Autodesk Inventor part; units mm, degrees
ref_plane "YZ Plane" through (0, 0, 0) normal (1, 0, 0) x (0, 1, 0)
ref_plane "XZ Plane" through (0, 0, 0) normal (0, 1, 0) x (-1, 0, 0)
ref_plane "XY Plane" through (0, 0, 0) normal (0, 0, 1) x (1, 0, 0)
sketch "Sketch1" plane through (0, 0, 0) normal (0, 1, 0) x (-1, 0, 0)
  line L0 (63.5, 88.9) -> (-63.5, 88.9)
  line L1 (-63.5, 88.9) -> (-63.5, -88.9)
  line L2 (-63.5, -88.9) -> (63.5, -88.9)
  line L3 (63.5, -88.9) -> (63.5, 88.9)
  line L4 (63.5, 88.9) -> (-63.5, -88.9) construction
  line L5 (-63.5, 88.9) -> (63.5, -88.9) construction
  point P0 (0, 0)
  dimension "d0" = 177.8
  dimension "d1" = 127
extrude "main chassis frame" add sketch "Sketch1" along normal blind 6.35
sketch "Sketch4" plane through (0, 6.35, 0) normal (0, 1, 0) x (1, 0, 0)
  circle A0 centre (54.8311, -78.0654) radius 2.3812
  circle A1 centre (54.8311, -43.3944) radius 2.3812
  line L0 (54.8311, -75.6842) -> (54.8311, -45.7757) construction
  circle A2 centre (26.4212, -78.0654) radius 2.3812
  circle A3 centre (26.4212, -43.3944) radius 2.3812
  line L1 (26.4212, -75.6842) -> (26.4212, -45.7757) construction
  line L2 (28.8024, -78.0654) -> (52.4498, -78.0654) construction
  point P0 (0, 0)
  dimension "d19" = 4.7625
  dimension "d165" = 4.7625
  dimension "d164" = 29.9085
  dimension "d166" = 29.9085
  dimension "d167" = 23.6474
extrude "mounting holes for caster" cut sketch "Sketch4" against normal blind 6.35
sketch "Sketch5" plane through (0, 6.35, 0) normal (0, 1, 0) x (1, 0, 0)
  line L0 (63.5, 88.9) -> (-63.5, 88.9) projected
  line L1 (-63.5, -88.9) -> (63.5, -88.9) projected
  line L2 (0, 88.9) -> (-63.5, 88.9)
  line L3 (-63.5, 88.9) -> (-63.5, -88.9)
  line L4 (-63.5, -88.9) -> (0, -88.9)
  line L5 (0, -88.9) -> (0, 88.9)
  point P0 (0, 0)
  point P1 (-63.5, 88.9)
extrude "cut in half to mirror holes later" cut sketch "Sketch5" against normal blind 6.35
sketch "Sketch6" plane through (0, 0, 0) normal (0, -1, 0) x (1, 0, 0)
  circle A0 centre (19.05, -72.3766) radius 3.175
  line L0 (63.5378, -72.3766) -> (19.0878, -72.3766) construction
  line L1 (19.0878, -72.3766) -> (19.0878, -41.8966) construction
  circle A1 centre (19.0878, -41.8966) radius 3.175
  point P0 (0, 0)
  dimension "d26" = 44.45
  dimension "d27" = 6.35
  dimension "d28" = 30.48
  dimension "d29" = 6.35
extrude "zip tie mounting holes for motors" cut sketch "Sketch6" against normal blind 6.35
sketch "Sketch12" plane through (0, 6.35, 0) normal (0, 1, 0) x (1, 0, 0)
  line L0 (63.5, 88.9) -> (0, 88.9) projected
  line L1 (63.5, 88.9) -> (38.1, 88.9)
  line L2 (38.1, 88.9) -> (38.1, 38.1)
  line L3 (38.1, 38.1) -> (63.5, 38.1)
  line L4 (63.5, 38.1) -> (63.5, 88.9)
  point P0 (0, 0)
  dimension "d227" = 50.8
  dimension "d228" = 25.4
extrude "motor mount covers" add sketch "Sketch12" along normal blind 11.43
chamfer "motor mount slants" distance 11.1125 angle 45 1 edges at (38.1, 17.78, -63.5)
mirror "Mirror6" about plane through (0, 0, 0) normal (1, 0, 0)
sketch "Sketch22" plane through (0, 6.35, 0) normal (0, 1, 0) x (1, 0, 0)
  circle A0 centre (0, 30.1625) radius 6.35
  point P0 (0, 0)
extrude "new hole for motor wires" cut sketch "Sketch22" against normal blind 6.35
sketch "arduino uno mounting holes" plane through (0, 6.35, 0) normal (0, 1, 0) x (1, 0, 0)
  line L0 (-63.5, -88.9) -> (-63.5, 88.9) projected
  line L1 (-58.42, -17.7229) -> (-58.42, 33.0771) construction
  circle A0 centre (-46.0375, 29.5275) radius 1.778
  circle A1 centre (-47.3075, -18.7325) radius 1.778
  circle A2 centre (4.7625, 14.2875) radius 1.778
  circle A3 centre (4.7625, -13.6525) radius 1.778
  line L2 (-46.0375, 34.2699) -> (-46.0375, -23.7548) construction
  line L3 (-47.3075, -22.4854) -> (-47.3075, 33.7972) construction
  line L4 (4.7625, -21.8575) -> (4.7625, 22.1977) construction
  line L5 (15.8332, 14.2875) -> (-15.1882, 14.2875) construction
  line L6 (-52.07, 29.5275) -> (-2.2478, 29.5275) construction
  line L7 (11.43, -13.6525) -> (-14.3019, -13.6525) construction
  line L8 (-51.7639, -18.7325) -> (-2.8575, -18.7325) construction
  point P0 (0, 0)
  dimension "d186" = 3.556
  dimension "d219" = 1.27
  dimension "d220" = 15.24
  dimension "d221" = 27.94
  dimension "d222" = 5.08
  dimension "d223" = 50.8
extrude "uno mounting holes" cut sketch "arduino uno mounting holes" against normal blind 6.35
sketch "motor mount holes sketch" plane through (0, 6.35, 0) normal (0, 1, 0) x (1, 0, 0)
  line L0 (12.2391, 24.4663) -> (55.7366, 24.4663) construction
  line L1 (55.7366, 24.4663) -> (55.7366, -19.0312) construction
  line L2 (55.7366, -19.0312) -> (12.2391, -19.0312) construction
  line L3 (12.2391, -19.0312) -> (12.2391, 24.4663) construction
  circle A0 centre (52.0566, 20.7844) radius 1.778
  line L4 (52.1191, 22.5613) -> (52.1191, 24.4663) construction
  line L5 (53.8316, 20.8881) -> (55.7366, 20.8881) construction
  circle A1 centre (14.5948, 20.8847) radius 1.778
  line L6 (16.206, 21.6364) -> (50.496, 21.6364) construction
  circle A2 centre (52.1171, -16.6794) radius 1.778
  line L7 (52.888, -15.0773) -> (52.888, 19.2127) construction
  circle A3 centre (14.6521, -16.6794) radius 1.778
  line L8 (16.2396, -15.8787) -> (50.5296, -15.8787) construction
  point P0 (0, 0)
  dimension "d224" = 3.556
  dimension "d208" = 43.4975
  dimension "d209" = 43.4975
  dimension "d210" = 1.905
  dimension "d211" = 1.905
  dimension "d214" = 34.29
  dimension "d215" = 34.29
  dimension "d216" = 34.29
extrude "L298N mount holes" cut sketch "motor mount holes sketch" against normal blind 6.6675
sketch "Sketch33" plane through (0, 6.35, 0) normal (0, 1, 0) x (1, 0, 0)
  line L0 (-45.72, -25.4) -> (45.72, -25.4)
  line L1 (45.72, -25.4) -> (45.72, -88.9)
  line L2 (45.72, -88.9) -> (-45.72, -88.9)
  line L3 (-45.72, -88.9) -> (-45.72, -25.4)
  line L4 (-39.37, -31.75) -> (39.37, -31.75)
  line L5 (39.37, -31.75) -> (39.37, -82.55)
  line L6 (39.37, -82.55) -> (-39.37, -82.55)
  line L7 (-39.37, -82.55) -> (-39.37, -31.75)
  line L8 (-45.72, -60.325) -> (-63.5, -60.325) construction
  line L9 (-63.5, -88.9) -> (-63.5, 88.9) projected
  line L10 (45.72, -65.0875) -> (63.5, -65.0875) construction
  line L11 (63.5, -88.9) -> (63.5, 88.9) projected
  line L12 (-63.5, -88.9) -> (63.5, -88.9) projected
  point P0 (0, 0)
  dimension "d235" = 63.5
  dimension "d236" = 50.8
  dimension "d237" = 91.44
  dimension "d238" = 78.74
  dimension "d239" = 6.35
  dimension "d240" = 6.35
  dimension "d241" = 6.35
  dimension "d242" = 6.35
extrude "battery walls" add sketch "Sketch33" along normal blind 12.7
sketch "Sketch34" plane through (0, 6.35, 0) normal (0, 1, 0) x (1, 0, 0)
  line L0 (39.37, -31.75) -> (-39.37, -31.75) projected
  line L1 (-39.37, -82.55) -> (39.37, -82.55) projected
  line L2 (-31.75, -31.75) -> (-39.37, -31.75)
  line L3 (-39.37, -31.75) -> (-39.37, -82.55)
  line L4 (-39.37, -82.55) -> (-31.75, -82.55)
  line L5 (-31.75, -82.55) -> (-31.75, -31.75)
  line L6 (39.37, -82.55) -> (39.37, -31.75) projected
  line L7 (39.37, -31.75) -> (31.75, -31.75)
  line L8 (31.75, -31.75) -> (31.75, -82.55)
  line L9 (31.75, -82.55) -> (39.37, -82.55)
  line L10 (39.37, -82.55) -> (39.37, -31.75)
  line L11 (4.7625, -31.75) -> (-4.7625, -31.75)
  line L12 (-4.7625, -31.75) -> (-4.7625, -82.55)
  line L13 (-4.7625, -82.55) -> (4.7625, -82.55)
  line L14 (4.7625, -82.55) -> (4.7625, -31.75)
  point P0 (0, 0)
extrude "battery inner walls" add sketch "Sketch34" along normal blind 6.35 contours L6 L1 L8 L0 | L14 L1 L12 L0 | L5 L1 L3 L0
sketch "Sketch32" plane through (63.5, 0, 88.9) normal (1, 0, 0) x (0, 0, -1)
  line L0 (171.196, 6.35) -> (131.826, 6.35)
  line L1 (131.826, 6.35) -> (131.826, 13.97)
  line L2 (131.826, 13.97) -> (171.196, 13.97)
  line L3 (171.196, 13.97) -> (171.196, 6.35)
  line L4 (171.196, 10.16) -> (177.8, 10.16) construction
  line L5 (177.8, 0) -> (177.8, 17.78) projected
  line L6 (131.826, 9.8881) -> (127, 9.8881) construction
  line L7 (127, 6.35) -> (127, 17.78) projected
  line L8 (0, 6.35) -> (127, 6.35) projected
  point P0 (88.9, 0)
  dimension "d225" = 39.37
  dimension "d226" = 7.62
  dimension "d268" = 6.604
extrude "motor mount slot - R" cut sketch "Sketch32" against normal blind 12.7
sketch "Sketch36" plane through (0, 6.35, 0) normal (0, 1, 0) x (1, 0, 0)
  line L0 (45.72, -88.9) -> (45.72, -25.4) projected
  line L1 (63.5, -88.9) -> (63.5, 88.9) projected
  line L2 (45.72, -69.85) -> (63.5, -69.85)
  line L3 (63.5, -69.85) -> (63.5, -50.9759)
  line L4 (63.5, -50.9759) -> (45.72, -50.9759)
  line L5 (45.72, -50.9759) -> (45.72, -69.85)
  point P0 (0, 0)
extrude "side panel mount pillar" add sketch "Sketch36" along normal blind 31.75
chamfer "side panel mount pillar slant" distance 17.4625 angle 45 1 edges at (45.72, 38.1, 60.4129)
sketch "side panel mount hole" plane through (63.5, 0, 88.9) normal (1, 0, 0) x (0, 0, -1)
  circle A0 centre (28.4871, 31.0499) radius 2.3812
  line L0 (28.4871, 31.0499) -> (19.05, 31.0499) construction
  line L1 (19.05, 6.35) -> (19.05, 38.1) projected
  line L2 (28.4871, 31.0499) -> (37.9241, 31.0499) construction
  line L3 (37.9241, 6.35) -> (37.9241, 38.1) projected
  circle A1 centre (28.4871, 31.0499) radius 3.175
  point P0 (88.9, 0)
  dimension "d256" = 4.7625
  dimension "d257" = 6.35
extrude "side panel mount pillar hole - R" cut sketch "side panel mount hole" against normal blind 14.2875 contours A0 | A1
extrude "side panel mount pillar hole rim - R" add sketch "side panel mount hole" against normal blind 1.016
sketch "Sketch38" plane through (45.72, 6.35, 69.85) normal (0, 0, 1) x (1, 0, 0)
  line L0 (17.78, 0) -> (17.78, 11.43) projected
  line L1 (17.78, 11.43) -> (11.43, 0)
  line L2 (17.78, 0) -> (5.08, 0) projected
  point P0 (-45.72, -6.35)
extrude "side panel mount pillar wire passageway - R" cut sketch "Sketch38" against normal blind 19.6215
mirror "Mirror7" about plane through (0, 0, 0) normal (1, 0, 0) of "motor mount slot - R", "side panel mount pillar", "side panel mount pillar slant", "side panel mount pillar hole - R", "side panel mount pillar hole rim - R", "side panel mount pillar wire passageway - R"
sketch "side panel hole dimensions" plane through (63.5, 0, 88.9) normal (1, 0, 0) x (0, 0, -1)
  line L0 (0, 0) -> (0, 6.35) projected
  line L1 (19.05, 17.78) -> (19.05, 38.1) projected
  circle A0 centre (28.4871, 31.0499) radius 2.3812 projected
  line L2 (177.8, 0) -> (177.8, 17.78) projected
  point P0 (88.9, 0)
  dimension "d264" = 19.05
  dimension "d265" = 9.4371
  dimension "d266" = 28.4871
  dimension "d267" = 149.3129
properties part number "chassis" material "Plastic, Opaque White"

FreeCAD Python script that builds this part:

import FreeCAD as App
import Part
import Sketcher
from FreeCAD import Vector
Q = App.Units.Quantity


def edges_at(feature, points):
    """Names of the edges that pass closest to the given points."""
    edges = feature.Shape.Edges
    near = lambda p: min(range(len(edges)), key=lambda i: edges[i].distToShape(Part.Vertex(*p))[0])
    return sorted({f"Edge{near(p) + 1}" for p in points})


def add_polygon(sketch, points):
    """Adds a closed chain of lines whose ends are joined by coincident constraints."""
    first, n = sketch.GeometryCount, len(points)
    for a, b in zip(points, points[1:] + points[:1]):
        sketch.addGeometry(Part.LineSegment(App.Vector(*a, 0), App.Vector(*b, 0)), False)
    for i in range(n):
        sketch.addConstraint(Sketcher.Constraint("Coincident", first + i, 2, first + (i + 1) % n, 1))

doc = App.newDocument("Part")
params = doc.addObject("Spreadsheet::Sheet", "Params")
for row, (alias, value) in enumerate([
    ("sketch1_width", "5 in"),
    ("sketch1_height", "7 in"),
    ("pad1_length", "0.25 in"),
    ("sketch2_diameter", "0.1875 in"),
    ("pocket1_length", "0.25 in"),
    ("sketch3_height", "7 in"),
    ("sketch3_width", "2.5 in"),
    ("pocket2_length", "0.25 in"),
    ("sketch4_diameter", "0.25 in"),
    ("pocket3_length", "0.25 in"),
    ("sketch5_width", "1 in"),
    ("sketch5_height", "2 in"),
    ("pad2_length", "0.45 in"),
    ("chamfer_size", "0.4375 in"),
    ("sketch6_diameter", "0.5 in"),
    ("pocket4_length", "0.25 in"),
    ("sketch7_diameter", "0.14 in"),
    ("pocket5_length", "0.25 in"),
    ("sketch8_diameter", "0.14 in"),
    ("pocket6_length", "0.2625 in"),
    ("sketch9_height", "2 in"),
    ("sketch9_width", "3.6 in"),
    ("sketch9_width2", "3.1 in"),
    ("sketch9_height2", "2.5 in"),
    ("pad3_length", "0.5 in"),
    ("sketch10_height", "2 in"),
    ("sketch10_width", "0.3 in"),
    ("sketch10_width2", "0.375 in"),
    ("pad4_length", "0.25 in"),
    ("sketch11_width", "0.3 in"),
    ("sketch11_height", "1.55 in"),
    ("pocket7_length", "0.5 in"),
    ("sketch12_width", "0.7 in"),
    ("pad5_length", "1.25 in"),
    ("chamfer2_size", "0.6875 in"),
    ("sketch13_diameter", "0.25 in"),
    ("pocket8_length", "0.5625 in"),
    ("sketch14_diameter", "0.25 in"),
    ("sketch14_diameter2", "0.1875 in"),
    ("pad6_length", "0.04 in"),
    ("sketch15_width", "0.25 in"),
    ("sketch15_height", "0.45 in"),
    ("pocket9_length", "0.7725 in"),
], start=1):
    params.set(f"A{row}", alias)
    params.set(f"B{row}", "=" + value)
    params.setAlias(f"B{row}", alias)

body = doc.addObject("PartDesign::Body", "Body")

# Sketch on XZ plane
sketch1 = doc.addObject("Sketcher::SketchObject", "Sketch")
body.addObject(sketch1)
sketch1.AttachmentSupport = (doc.XZ_Plane, [""])
sketch1.MapMode = "FlatFace"
add_polygon(sketch1, [(-64, -89), (-64, 89), (64, 89), (64, -89)])  # lines 0-3
sketch1.addConstraint([
    Sketcher.Constraint("Vertical", 0),
    Sketcher.Constraint("Horizontal", 1),
    Sketcher.Constraint("Vertical", 2),
    Sketcher.Constraint("Horizontal", 3),
    Sketcher.Constraint("Symmetric", 0, 2, 2, 2, -1, 1),
    Sketcher.Constraint("DistanceX", 1, 1, 1, 2, Q("5 in")),
    Sketcher.Constraint("DistanceY", 0, 1, 0, 2, Q("7 in")),
])
sketch1.setExpression("Constraints[9]", "Params.sketch1_width")
sketch1.setExpression("Constraints[10]", "Params.sketch1_height")
pad1 = doc.addObject("PartDesign::Pad", "Pad")
body.addObject(pad1)
pad1.Profile = sketch1
pad1.setExpression("Length", "Params.pad1_length")
pad1.Reversed = True

# Sketch on XZ plane
sketch2 = doc.addObject("Sketcher::SketchObject", "Sketch001")
body.addObject(sketch2)
sketch2.AttachmentSupport = (doc.XZ_Plane, [""])
sketch2.MapMode = "FlatFace"
sketch2.AttachmentOffset = App.Placement(Vector(0, 0, -0.25 * 25.4), App.Rotation())
sketch2.addGeometry([
    Part.Circle(Vector(54.8, 78.1, 0), Vector(0, 0, 1), 2.4),
    Part.Circle(Vector(54.8, 43.4, 0), Vector(0, 0, 1), 2.4),
    Part.Circle(Vector(26.4, 78.1, 0), Vector(0, 0, 1), 2.4),
    Part.Circle(Vector(26.4, 43.4, 0), Vector(0, 0, 1), 2.4),
], False)
sketch2.addConstraint([
    Sketcher.Constraint("Equal", 0, 1),
    Sketcher.Constraint("Equal", 1, 2),
    Sketcher.Constraint("Equal", 2, 3),
    Sketcher.Constraint("Horizontal", 0, 3, 2, 3),
    Sketcher.Constraint("Horizontal", 1, 3, 3, 3),
    Sketcher.Constraint("Vertical", 0, 3, 1, 3),
    Sketcher.Constraint("Vertical", 2, 3, 3, 3),
    Sketcher.Constraint("Diameter", 0, Q("0.1875 in")),
    Sketcher.Constraint("DistanceY", 1, 3, 0, 3, Q("1.365 in")),
    Sketcher.Constraint("DistanceX", -1, 1, 0, 3, Q("2.1587 in")),
    Sketcher.Constraint("DistanceX", -1, 1, 2, 3, Q("1.0402 in")),
    Sketcher.Constraint("DistanceY", -1, 1, 0, 3, 78.0654),
])
sketch2.setExpression("Constraints[7]", "Params.sketch2_diameter")
pocket1 = doc.addObject("PartDesign::Pocket", "Pocket")
body.addObject(pocket1)
pocket1.Profile = sketch2
pocket1.setExpression("Length", "Params.pocket1_length")
pocket1.Reversed = True

# Sketch on XZ plane
sketch3 = doc.addObject("Sketcher::SketchObject", "Sketch002")
body.addObject(sketch3)
sketch3.AttachmentSupport = (doc.XZ_Plane, [""])
sketch3.MapMode = "FlatFace"
sketch3.AttachmentOffset = App.Placement(Vector(0, 0, -0.25 * 25.4), App.Rotation())
add_polygon(sketch3, [(0, 89), (0, -89), (-64, -89), (-64, 89)])  # lines 0-3
sketch3.addConstraint([
    Sketcher.Constraint("Vertical", 0),
    Sketcher.Constraint("Horizontal", 1),
    Sketcher.Constraint("Vertical", 2),
    Sketcher.Constraint("Horizontal", 3),
    Sketcher.Constraint("Symmetric", 0, 2, 3, 2, -1, 1),
    Sketcher.Constraint("DistanceY", 0, 2, 0, 1, Q("7 in")),
    Sketcher.Constraint("DistanceX", 1, 2, 1, 1, Q("2.5 in")),
])
sketch3.setExpression("Constraints[9]", "Params.sketch3_height")
sketch3.setExpression("Constraints[10]", "Params.sketch3_width")
pocket2 = doc.addObject("PartDesign::Pocket", "Pocket001")
body.addObject(pocket2)
pocket2.Profile = sketch3
pocket2.setExpression("Length", "Params.pocket2_length")
pocket2.Reversed = True

# Sketch on XZ plane
sketch4 = doc.addObject("Sketcher::SketchObject", "Sketch003")
body.addObject(sketch4)
sketch4.AttachmentSupport = (doc.XZ_Plane, [""])
sketch4.MapMode = "FlatFace"
sketch4.addGeometry([
    Part.Circle(Vector(19.1, -72.4, 0), Vector(0, 0, 1), 3.2),
    Part.Circle(Vector(19.1, -41.9, 0), Vector(0, 0, 1), 3.2),
], False)
sketch4.addConstraint([
    Sketcher.Constraint("Equal", 0, 1),
    Sketcher.Constraint("Diameter", 0, Q("0.25 in")),
    Sketcher.Constraint("DistanceY", 0, 3, 1, 3, Q("1.2 in")),
    Sketcher.Constraint("DistanceX", -1, 1, 0, 3, Q("0.75 in")),
    Sketcher.Constraint("DistanceX", -1, 1, 1, 3, Q("0.7515 in")),
    Sketcher.Constraint("DistanceY", 0, 3, -1, 1, 72.3766),
])
sketch4.setExpression("Constraints[1]", "Params.sketch4_diameter")
pocket3 = doc.addObject("PartDesign::Pocket", "Pocket002")
body.addObject(pocket3)
pocket3.Profile = sketch4
pocket3.setExpression("Length", "Params.pocket3_length")

# Sketch on XZ plane
sketch5 = doc.addObject("Sketcher::SketchObject", "Sketch004")
body.addObject(sketch5)
sketch5.AttachmentSupport = (doc.XZ_Plane, [""])
sketch5.MapMode = "FlatFace"
sketch5.AttachmentOffset = App.Placement(Vector(0, 0, -0.25 * 25.4), App.Rotation())
add_polygon(sketch5, [(64, -38), (64, -89), (38, -89), (38, -38)])  # lines 0-3
sketch5.addConstraint([
    Sketcher.Constraint("Vertical", 0),
    Sketcher.Constraint("Horizontal", 1),
    Sketcher.Constraint("Vertical", 2),
    Sketcher.Constraint("Horizontal", 3),
    Sketcher.Constraint("DistanceX", 1, 2, 1, 1, Q("1 in")),
    Sketcher.Constraint("DistanceY", 0, 2, 0, 1, Q("2 in")),
    Sketcher.Constraint("DistanceX", -1, 1, 0, 2, Q("2.5 in")),
    Sketcher.Constraint("DistanceY", 0, 2, -1, 1, Q("3.5 in")),
])
sketch5.setExpression("Constraints[8]", "Params.sketch5_width")
sketch5.setExpression("Constraints[9]", "Params.sketch5_height")
pad2 = doc.addObject("PartDesign::Pad", "Pad001")
body.addObject(pad2)
pad2.Profile = sketch5
pad2.setExpression("Length", "Params.pad2_length")
pad2.Reversed = True
doc.recompute()

chamfer = doc.addObject("PartDesign::Chamfer", "Chamfer")
body.addObject(chamfer)
chamfer.Base = (pad2, edges_at(pad2, [(38.1, 17.78, -63.5)]))
chamfer.setExpression("Size", "Params.chamfer_size")
doc.recompute()

mirrored = doc.addObject("PartDesign::Mirrored", "Mirrored")
body.addObject(mirrored)
mirrored.TransformMode = "Transform body"
mirrored.MirrorPlane = (doc.YZ_Plane, [""])
body.Tip = mirrored

# Sketch on XZ plane
sketch6 = doc.addObject("Sketcher::SketchObject", "Sketch005")
body.addObject(sketch6)
sketch6.AttachmentSupport = (doc.XZ_Plane, [""])
sketch6.MapMode = "FlatFace"
sketch6.AttachmentOffset = App.Placement(Vector(0, 0, -0.25 * 25.4), App.Rotation())
sketch6.addGeometry(Part.Circle(Vector(0, -30, 0), Vector(0, 0, 1), 6), False)
sketch6.addConstraint([
    Sketcher.Constraint("PointOnObject", 0, 3, -2),
    Sketcher.Constraint("Diameter", 0, Q("0.5 in")),
    Sketcher.Constraint("DistanceY", 0, 3, -1, 1, Q("1.1875 in")),
])
sketch6.setExpression("Constraints[1]", "Params.sketch6_diameter")
pocket4 = doc.addObject("PartDesign::Pocket", "Pocket003")
body.addObject(pocket4)
pocket4.Profile = sketch6
pocket4.setExpression("Length", "Params.pocket4_length")
pocket4.Reversed = True

# Sketch on XZ plane
sketch7 = doc.addObject("Sketcher::SketchObject", "Sketch006")
body.addObject(sketch7)
sketch7.AttachmentSupport = (doc.XZ_Plane, [""])
sketch7.MapMode = "FlatFace"
sketch7.AttachmentOffset = App.Placement(Vector(0, 0, -0.25 * 25.4), App.Rotation())
sketch7.addGeometry([
    Part.Circle(Vector(-46, -29.5, 0), Vector(0, 0, 1), 1.8),
    Part.Circle(Vector(-47.3, 18.7, 0), Vector(0, 0, 1), 1.8),
    Part.Circle(Vector(4.8, -14.3, 0), Vector(0, 0, 1), 1.8),
    Part.Circle(Vector(4.8, 13.7, 0), Vector(0, 0, 1), 1.8),
], False)
sketch7.addConstraint([
    Sketcher.Constraint("Equal", 0, 1),
    Sketcher.Constraint("Equal", 1, 2),
    Sketcher.Constraint("Equal", 2, 3),
    Sketcher.Constraint("Vertical", 2, 3, 3, 3),
    Sketcher.Constraint("Diameter", 0, Q("0.14 in")),
    Sketcher.Constraint("DistanceX", 0, 3, 2, 3, Q("2 in")),
    Sketcher.Constraint("DistanceY", 0, 3, 2, 3, Q("0.6 in")),
    Sketcher.Constraint("DistanceY", 2, 3, 3, 3, Q("1.1 in")),
    Sketcher.Constraint("DistanceY", 3, 3, 1, 3, Q("0.2 in")),
    Sketcher.Constraint("DistanceX", 1, 3, 0, 3, Q("0.05 in")),
    Sketcher.Constraint("DistanceX", 0, 3, -1, 1, Q("1.8125 in")),
    Sketcher.Constraint("DistanceY", 2, 3, -1, 1, Q("0.5625 in")),
])
sketch7.setExpression("Constraints[4]", "Params.sketch7_diameter")
pocket5 = doc.addObject("PartDesign::Pocket", "Pocket004")
body.addObject(pocket5)
pocket5.Profile = sketch7
pocket5.setExpression("Length", "Params.pocket5_length")
pocket5.Reversed = True

# Sketch on XZ plane
sketch8 = doc.addObject("Sketcher::SketchObject", "Sketch007")
body.addObject(sketch8)
sketch8.AttachmentSupport = (doc.XZ_Plane, [""])
sketch8.MapMode = "FlatFace"
sketch8.AttachmentOffset = App.Placement(Vector(0, 0, -0.25 * 25.4), App.Rotation())
sketch8.addGeometry([
    Part.Circle(Vector(52.1, -20.8, 0), Vector(0, 0, 1), 1.8),
    Part.Circle(Vector(14.6, -20.9, 0), Vector(0, 0, 1), 1.8),
    Part.Circle(Vector(52.1, 16.7, 0), Vector(0, 0, 1), 1.8),
    Part.Circle(Vector(14.7, 16.7, 0), Vector(0, 0, 1), 1.8),
], False)
sketch8.addConstraint([
    Sketcher.Constraint("Equal", 0, 1),
    Sketcher.Constraint("Equal", 1, 2),
    Sketcher.Constraint("Equal", 2, 3),
    Sketcher.Constraint("Horizontal", 2, 3, 3, 3),
    Sketcher.Constraint("Diameter", 0, Q("0.14 in")),
    Sketcher.Constraint("DistanceX", 3, 3, 2, 3, Q("1.475 in")),
    Sketcher.Constraint("DistanceX", -1, 1, 1, 3, Q("0.5746 in")),
    Sketcher.Constraint("DistanceY", 1, 3, 2, 3, Q("1.4789 in")),
    Sketcher.Constraint("DistanceX", -1, 1, 0, 3, 52.0566),
    Sketcher.Constraint("DistanceY", 0, 3, -1, 1, 20.7844),
    Sketcher.Constraint("DistanceY", 1, 3, -1, 1, 20.8847),
    Sketcher.Constraint("DistanceX", -1, 1, 2, 3, 52.117),
])
sketch8.setExpression("Constraints[4]", "Params.sketch8_diameter")
pocket6 = doc.addObject("PartDesign::Pocket", "Pocket005")
body.addObject(pocket6)
pocket6.Profile = sketch8
pocket6.setExpression("Length", "Params.pocket6_length")
pocket6.Reversed = True

# Sketch on XZ plane
sketch9 = doc.addObject("Sketcher::SketchObject", "Sketch008")
body.addObject(sketch9)
sketch9.AttachmentSupport = (doc.XZ_Plane, [""])
sketch9.MapMode = "FlatFace"
sketch9.AttachmentOffset = App.Placement(Vector(0, 0, -0.25 * 25.4), App.Rotation())
add_polygon(sketch9, [(46, 25), (-46, 25), (-46, 89), (46, 89)])  # lines 0-3
add_polygon(sketch9, [(-39, 83), (-39, 32), (39, 32), (39, 83)])  # lines 4-7
sketch9.addConstraint([
    Sketcher.Constraint("Horizontal", 0),
    Sketcher.Constraint("Vertical", 1),
    Sketcher.Constraint("Horizontal", 2),
    Sketcher.Constraint("Vertical", 3),
    Sketcher.Constraint("Vertical", 4),
    Sketcher.Constraint("Horizontal", 5),
    Sketcher.Constraint("Vertical", 6),
    Sketcher.Constraint("Horizontal", 7),
    Sketcher.Constraint("DistanceY", 4, 2, 4, 1, Q("2 in")),
    Sketcher.Constraint("DistanceX", 0, 2, 0, 1, Q("3.6 in")),
    Sketcher.Constraint("DistanceX", 5, 1, 5, 2, Q("3.1 in")),
    Sketcher.Constraint("DistanceY", 1, 1, 1, 2, Q("2.5 in")),
    Sketcher.Constraint("DistanceX", 0, 2, 4, 2, Q("0.25 in")),
    Sketcher.Constraint("DistanceY", 0, 2, 4, 2, Q("0.25 in")),
    Sketcher.Constraint("DistanceY", -1, 1, 0, 2, Q("1 in")),
    Sketcher.Constraint("DistanceX", 0, 2, -1, 1, Q("1.8 in")),
])
sketch9.setExpression("Constraints[16]", "Params.sketch9_height")
sketch9.setExpression("Constraints[17]", "Params.sketch9_width")
sketch9.setExpression("Constraints[18]", "Params.sketch9_width2")
sketch9.setExpression("Constraints[19]", "Params.sketch9_height2")
pad3 = doc.addObject("PartDesign::Pad", "Pad002")
body.addObject(pad3)
pad3.Profile = sketch9
pad3.setExpression("Length", "Params.pad3_length")
pad3.Reversed = True

# Sketch on XZ plane
sketch10 = doc.addObject("Sketcher::SketchObject", "Sketch009")
body.addObject(sketch10)
sketch10.AttachmentSupport = (doc.XZ_Plane, [""])
sketch10.MapMode = "FlatFace"
sketch10.AttachmentOffset = App.Placement(Vector(0, 0, -0.25 * 25.4), App.Rotation())
add_polygon(sketch10, [(39, 83), (39, 32), (32, 32), (32, 83)])  # lines 0-3
add_polygon(sketch10, [(5, 83), (5, 32), (-5, 32), (-5, 83)])  # lines 4-7
add_polygon(sketch10, [(-32, 83), (-32, 32), (-39, 32), (-39, 83)])  # lines 8-11
sketch10.addConstraint([
    Sketcher.Constraint("Vertical", 0),
    Sketcher.Constraint("Horizontal", 1),
    Sketcher.Constraint("Vertical", 2),
    Sketcher.Constraint("Horizontal", 3),
    Sketcher.Constraint("Vertical", 4),
    Sketcher.Constraint("Horizontal", 5),
    Sketcher.Constraint("Vertical", 6),
    Sketcher.Constraint("Horizontal", 7),
    Sketcher.Constraint("Vertical", 8),
    Sketcher.Constraint("Horizontal", 9),
    Sketcher.Constraint("Vertical", 10),
    Sketcher.Constraint("Horizontal", 11),
    Sketcher.Constraint("Symmetric", 1, 2, 8, 2, -2),
    Sketcher.Constraint("Symmetric", 3, 2, 10, 2, -2),
    Sketcher.Constraint("Horizontal", 1, 2, 4, 2),
    Sketcher.Constraint("Horizontal", 3, 2, 6, 2),
    Sketcher.Constraint("DistanceY", 0, 2, 0, 1, Q("2 in")),
    Sketcher.Constraint("DistanceX", 1, 2, 1, 1, Q("0.3 in")),
    Sketcher.Constraint("DistanceX", 8, 2, 1, 2, Q("2.5 in")),
    Sketcher.Constraint("DistanceX", 5, 2, 5, 1, Q("0.375 in")),
    Sketcher.Constraint("DistanceY", -1, 1, 0, 2, Q("1.25 in")),
    Sketcher.Constraint("DistanceX", -1, 1, 4, 2, Q("0.1875 in")),
])
sketch10.setExpression("Constraints[28]", "Params.sketch10_height")
sketch10.setExpression("Constraints[29]", "Params.sketch10_width")
sketch10.setExpression("Constraints[31]", "Params.sketch10_width2")
pad4 = doc.addObject("PartDesign::Pad", "Pad003")
body.addObject(pad4)
pad4.Profile = sketch10
pad4.setExpression("Length", "Params.pad4_length")
pad4.Reversed = True

# Sketch on YZ plane
sketch11 = doc.addObject("Sketcher::SketchObject", "Sketch010")
body.addObject(sketch11)
sketch11.AttachmentSupport = (doc.YZ_Plane, [""])
sketch11.MapMode = "FlatFace"
sketch11.AttachmentOffset = App.Placement(Vector(0, 0, 2.5 * 25.4), App.Rotation())
add_polygon(sketch11, [(6, -43), (6, -82), (14, -82), (14, -43)])  # lines 0-3
sketch11.addConstraint([
    Sketcher.Constraint("Vertical", 0),
    Sketcher.Constraint("Horizontal", 1),
    Sketcher.Constraint("Vertical", 2),
    Sketcher.Constraint("Horizontal", 3),
    Sketcher.Constraint("DistanceX", 1, 1, 1, 2, Q("0.3 in")),
    Sketcher.Constraint("DistanceY", 0, 2, 0, 1, Q("1.55 in")),
    Sketcher.Constraint("DistanceX", -1, 1, 0, 2, Q("0.25 in")),
    Sketcher.Constraint("DistanceY", 0, 2, -1, 1, Q("3.24 in")),
])
sketch11.setExpression("Constraints[8]", "Params.sketch11_width")
sketch11.setExpression("Constraints[9]", "Params.sketch11_height")
pocket7 = doc.addObject("PartDesign::Pocket", "Pocket006")
body.addObject(pocket7)
pocket7.Profile = sketch11
pocket7.setExpression("Length", "Params.pocket7_length")

# Sketch on XZ plane
sketch12 = doc.addObject("Sketcher::SketchObject", "Sketch011")
body.addObject(sketch12)
sketch12.AttachmentSupport = (doc.XZ_Plane, [""])
sketch12.MapMode = "FlatFace"
sketch12.AttachmentOffset = App.Placement(Vector(0, 0, -0.25 * 25.4), App.Rotation())
add_polygon(sketch12, [(46, 51), (46, 70), (64, 70), (64, 51)])  # lines 0-3
sketch12.addConstraint([
    Sketcher.Constraint("Vertical", 0),
    Sketcher.Constraint("Horizontal", 1),
    Sketcher.Constraint("Vertical", 2),
    Sketcher.Constraint("Horizontal", 3),
    Sketcher.Constraint("DistanceX", 1, 1, 1, 2, Q("0.7 in")),
    Sketcher.Constraint("DistanceX", -1, 1, 0, 2, Q("1.8 in")),
    Sketcher.Constraint("DistanceY", -1, 1, 0, 2, Q("2.75 in")),
    Sketcher.Constraint("DistanceY", 0, 1, 0, 2, 18.874),
])
sketch12.setExpression("Constraints[8]", "Params.sketch12_width")
pad5 = doc.addObject("PartDesign::Pad", "Pad004")
body.addObject(pad5)
pad5.Profile = sketch12
pad5.setExpression("Length", "Params.pad5_length")
pad5.Reversed = True
doc.recompute()

chamfer2 = doc.addObject("PartDesign::Chamfer", "Chamfer001")
body.addObject(chamfer2)
chamfer2.Base = (pad5, edges_at(pad5, [(45.72, 38.1, 60.413)]))
chamfer2.setExpression("Size", "Params.chamfer2_size")

# Sketch on YZ plane
sketch13 = doc.addObject("Sketcher::SketchObject", "Sketch012")
body.addObject(sketch13)
sketch13.AttachmentSupport = (doc.YZ_Plane, [""])
sketch13.MapMode = "FlatFace"
sketch13.AttachmentOffset = App.Placement(Vector(0, 0, 2.5 * 25.4), App.Rotation())
sketch13.addGeometry(Part.Circle(Vector(31, 60.4, 0), Vector(0, 0, 1), 3.2), False)
sketch13.addConstraint([
    Sketcher.Constraint("Diameter", 0, Q("0.25 in")),
    Sketcher.Constraint("DistanceX", -1, 1, 0, 3, 31.05),
    Sketcher.Constraint("DistanceY", -1, 1, 0, 3, 60.413),
])
sketch13.setExpression("Constraints[0]", "Params.sketch13_diameter")
pocket8 = doc.addObject("PartDesign::Pocket", "Pocket007")
body.addObject(pocket8)
pocket8.Profile = sketch13
pocket8.setExpression("Length", "Params.pocket8_length")

# Sketch on YZ plane
sketch14 = doc.addObject("Sketcher::SketchObject", "Sketch013")
body.addObject(sketch14)
sketch14.AttachmentSupport = (doc.YZ_Plane, [""])
sketch14.MapMode = "FlatFace"
sketch14.AttachmentOffset = App.Placement(Vector(0, 0, 2.5 * 25.4), App.Rotation())
sketch14.addGeometry([
    Part.Circle(Vector(31, 60.4, 0), Vector(0, 0, 1), 3.2),
    Part.Circle(Vector(31, 60.4, 0), Vector(0, 0, 1), 2.4),
], False)
sketch14.addConstraint([
    Sketcher.Constraint("Coincident", 1, 3, 0, 3),
    Sketcher.Constraint("Diameter", 0, Q("0.25 in")),
    Sketcher.Constraint("Diameter", 1, Q("0.1875 in")),
    Sketcher.Constraint("DistanceX", -1, 1, 0, 3, 31.05),
    Sketcher.Constraint("DistanceY", -1, 1, 0, 3, 60.413),
])
sketch14.setExpression("Constraints[1]", "Params.sketch14_diameter")
sketch14.setExpression("Constraints[2]", "Params.sketch14_diameter2")
pad6 = doc.addObject("PartDesign::Pad", "Pad005")
body.addObject(pad6)
pad6.Profile = sketch14
pad6.setExpression("Length", "Params.pad6_length")
pad6.Reversed = True

# Sketch on XY plane
sketch15 = doc.addObject("Sketcher::SketchObject", "Sketch014")
body.addObject(sketch15)
sketch15.AttachmentSupport = (doc.XY_Plane, [""])
sketch15.MapMode = "FlatFace"
sketch15.AttachmentOffset = App.Placement(Vector(0, 0, 2.75 * 25.4), App.Rotation())
add_polygon(sketch15, [(57, 6), (64, 6), (64, 18)])  # lines 0-2
sketch15.addConstraint([
    Sketcher.Constraint("Horizontal", 0),
    Sketcher.Constraint("Vertical", 1),
    Sketcher.Constraint("DistanceX", 0, 1, 0, 2, Q("0.25 in")),
    Sketcher.Constraint("DistanceY", 1, 1, 1, 2, Q("0.45 in")),
    Sketcher.Constraint("DistanceX", -1, 1, 0, 2, Q("2.5 in")),
    Sketcher.Constraint("DistanceY", -1, 1, 1, 2, Q("0.7 in")),
])
sketch15.setExpression("Constraints[5]", "Params.sketch15_width")
sketch15.setExpression("Constraints[6]", "Params.sketch15_height")
pocket9 = doc.addObject("PartDesign::Pocket", "Pocket008")
body.addObject(pocket9)
pocket9.Profile = sketch15
pocket9.setExpression("Length", "Params.pocket9_length")
doc.recompute()

mirrored2 = doc.addObject("PartDesign::Mirrored", "Mirrored001")
body.addObject(mirrored2)
mirrored2.Originals = [pocket7, pad5, chamfer2, pocket8, pad6, pocket9]
mirrored2.MirrorPlane = (doc.YZ_Plane, [""])
body.Tip = mirrored2

doc.recompute()
